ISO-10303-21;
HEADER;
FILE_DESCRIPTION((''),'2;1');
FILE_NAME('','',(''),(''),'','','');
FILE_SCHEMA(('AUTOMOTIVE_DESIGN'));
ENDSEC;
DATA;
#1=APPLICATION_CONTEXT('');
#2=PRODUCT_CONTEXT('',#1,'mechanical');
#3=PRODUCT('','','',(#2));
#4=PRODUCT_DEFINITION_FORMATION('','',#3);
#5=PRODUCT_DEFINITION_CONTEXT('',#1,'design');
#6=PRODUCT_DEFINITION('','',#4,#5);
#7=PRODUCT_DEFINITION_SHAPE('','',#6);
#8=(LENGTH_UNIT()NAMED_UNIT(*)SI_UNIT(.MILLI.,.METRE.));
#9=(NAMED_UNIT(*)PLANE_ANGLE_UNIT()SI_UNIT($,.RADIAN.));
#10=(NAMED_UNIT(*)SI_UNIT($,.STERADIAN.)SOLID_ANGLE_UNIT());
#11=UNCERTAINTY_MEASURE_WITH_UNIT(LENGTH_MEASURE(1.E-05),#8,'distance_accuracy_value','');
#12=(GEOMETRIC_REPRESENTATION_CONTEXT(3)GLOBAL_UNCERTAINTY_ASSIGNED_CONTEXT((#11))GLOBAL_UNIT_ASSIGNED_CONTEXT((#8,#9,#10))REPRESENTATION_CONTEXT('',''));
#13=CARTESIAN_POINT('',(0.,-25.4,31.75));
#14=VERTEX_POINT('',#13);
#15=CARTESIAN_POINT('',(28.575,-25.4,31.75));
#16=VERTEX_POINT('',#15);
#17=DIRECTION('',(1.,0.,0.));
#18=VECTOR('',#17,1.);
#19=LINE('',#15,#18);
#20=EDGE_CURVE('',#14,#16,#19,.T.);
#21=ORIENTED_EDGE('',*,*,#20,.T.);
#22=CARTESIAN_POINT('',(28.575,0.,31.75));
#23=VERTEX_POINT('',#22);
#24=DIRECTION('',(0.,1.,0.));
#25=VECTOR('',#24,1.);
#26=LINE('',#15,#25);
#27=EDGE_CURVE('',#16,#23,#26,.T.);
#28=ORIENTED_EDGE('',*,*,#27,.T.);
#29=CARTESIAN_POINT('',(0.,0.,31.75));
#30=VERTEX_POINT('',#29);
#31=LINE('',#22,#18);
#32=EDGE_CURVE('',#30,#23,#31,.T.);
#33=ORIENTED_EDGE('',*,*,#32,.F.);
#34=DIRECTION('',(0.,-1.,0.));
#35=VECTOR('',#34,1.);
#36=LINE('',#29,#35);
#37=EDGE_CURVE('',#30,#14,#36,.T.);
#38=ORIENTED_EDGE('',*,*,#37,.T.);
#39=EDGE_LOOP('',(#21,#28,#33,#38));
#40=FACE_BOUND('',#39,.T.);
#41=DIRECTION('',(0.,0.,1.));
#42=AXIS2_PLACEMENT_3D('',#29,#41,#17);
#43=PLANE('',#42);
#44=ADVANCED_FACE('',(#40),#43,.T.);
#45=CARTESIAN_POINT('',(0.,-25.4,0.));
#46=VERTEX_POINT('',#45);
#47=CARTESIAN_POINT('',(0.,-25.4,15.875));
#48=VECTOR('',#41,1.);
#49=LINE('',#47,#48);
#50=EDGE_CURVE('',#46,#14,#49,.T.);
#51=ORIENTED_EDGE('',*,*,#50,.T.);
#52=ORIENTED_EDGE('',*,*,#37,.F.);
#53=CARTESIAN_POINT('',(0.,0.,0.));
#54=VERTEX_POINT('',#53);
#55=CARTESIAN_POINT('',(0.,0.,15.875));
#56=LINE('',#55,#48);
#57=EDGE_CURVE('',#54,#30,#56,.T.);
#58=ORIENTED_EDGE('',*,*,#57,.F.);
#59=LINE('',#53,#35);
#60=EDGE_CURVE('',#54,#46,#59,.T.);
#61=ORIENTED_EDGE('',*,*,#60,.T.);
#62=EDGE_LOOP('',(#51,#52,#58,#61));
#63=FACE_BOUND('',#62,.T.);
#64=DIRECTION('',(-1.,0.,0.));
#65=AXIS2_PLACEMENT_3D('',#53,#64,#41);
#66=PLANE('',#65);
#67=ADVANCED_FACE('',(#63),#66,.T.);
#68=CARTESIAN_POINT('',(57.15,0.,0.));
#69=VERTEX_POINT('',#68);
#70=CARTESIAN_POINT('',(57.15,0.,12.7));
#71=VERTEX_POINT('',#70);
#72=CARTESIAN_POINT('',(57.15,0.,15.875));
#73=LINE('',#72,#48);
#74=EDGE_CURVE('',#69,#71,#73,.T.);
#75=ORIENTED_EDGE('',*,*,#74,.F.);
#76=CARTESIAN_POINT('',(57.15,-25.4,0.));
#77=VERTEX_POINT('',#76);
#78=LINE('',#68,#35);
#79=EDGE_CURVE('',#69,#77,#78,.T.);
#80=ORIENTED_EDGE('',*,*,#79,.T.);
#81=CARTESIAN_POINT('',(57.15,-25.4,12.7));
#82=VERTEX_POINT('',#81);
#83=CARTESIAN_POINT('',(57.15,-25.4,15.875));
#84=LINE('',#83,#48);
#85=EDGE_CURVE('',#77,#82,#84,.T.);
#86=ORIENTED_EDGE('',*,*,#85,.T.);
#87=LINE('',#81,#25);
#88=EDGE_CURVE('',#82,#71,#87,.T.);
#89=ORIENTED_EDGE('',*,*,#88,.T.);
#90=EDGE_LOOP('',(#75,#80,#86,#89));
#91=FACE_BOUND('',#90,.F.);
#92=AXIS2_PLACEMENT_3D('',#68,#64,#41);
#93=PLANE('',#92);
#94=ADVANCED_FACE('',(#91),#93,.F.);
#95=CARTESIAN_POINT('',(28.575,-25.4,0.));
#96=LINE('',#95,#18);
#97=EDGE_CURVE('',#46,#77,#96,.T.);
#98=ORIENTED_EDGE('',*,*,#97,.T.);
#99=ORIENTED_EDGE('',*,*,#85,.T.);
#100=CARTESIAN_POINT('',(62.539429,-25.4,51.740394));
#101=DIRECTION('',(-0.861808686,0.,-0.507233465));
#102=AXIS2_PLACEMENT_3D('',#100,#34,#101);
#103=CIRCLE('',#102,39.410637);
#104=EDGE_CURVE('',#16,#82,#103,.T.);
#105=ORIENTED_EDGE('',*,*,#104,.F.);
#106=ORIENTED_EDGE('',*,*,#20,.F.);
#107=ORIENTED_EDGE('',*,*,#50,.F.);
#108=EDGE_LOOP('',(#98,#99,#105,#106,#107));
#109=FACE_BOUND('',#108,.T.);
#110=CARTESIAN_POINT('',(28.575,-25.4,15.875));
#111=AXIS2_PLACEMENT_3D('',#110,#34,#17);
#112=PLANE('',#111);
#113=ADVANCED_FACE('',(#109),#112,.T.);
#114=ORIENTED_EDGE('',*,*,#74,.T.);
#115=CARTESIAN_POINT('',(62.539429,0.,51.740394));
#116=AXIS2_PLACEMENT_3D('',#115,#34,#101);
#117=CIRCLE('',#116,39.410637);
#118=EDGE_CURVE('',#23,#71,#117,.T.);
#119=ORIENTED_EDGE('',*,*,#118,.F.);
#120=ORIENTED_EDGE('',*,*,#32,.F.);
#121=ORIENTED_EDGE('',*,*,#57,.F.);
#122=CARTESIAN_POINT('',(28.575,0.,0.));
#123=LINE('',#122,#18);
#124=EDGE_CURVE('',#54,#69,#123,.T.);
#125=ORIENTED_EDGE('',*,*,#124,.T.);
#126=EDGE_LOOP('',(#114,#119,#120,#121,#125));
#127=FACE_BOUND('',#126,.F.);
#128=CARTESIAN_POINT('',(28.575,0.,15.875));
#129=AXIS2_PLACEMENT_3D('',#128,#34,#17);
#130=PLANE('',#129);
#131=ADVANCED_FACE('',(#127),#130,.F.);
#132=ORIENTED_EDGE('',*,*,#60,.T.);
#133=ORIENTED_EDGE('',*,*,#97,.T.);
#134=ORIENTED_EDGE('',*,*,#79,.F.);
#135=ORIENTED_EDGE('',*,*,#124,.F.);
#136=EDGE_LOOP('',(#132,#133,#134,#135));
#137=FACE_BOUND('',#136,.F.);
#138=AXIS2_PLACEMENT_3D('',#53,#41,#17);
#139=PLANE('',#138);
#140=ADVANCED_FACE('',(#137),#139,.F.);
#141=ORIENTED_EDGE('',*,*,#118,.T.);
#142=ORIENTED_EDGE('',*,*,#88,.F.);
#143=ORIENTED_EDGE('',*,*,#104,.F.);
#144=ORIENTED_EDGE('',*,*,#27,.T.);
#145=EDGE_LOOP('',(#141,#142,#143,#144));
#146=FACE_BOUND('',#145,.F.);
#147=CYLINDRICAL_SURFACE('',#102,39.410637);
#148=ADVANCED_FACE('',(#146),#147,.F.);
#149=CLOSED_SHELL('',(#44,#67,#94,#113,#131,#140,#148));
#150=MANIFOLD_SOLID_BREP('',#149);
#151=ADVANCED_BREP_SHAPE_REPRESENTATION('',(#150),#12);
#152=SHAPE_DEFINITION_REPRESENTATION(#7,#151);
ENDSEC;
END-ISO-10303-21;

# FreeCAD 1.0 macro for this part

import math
import FreeCAD as App
import Part
import Sketcher
from FreeCAD import Vector
Q = App.Units.Quantity


def add_polygon(sketch, points):
    """Adds a closed chain of lines whose ends are joined by coincident constraints."""
    first, n = sketch.GeometryCount, len(points)
    for a, b in zip(points, points[1:] + points[:1]):
        sketch.addGeometry(Part.LineSegment(App.Vector(*a, 0), App.Vector(*b, 0)), False)
    for i in range(n):
        sketch.addConstraint(Sketcher.Constraint("Coincident", first + i, 2, first + (i + 1) % n, 1))

doc = App.newDocument("Part")
body = doc.addObject("PartDesign::Body", "Body")

# Sketch on XZ plane
sketch1 = body.newObject("Sketcher::SketchObject", "Sketch")
sketch1.AttachmentSupport = (doc.getObject("XZ_Plane"), [""])
sketch1.MapMode = "FlatFace"
add_polygon(sketch1, [(0, 32), (0, 0), (57, 0), (57, 32)])  # lines 0-3
sketch1.addConstraint([
    Sketcher.Constraint("Vertical", 0),
    Sketcher.Constraint("Horizontal", 1),
    Sketcher.Constraint("Vertical", 2),
    Sketcher.Constraint("Horizontal", 3),
    Sketcher.Constraint("Coincident", 0, 2, -1, 1),
    Sketcher.Constraint("DistanceX", 1, 1, 1, 2, Q("2.25 in")),
    Sketcher.Constraint("DistanceY", 0, 2, 0, 1, Q("1.25 in")),
])
pad1 = body.newObject("PartDesign::Pad", "Pad")
pad1.Profile = sketch1
pad1.Length = Q("1 in")

# Sketch on XZ plane
sketch2 = body.newObject("Sketcher::SketchObject", "Sketch001")
sketch2.AttachmentSupport = (doc.getObject("XZ_Plane"), [""])
sketch2.MapMode = "FlatFace"
sketch2.AttachmentOffset = App.Placement(Vector(0, 0, 1 * 25.4), App.Rotation())
sketch2.addGeometry([
    Part.LineSegment(Vector(57, 32, 0), Vector(29, 32, 0)),
    Part.ArcOfCircle(Part.Circle(Vector(63, 52, 0), Vector(0, 0, 1), 39), math.radians(-150), math.radians(-98)),
    Part.LineSegment(Vector(57, 13, 0), Vector(57, 32, 0)),
], False)
sketch2.addConstraint([
    Sketcher.Constraint("Coincident", 0, 2, 1, 1),
    Sketcher.Constraint("Coincident", 1, 2, 2, 1),
    Sketcher.Constraint("Coincident", 2, 2, 0, 1),
    Sketcher.Constraint("Horizontal", 0),
    Sketcher.Constraint("Vertical", 2),
    Sketcher.Constraint("DistanceY", 2, 1, 2, 2, Q("0.75 in")),
    Sketcher.Constraint("DistanceY", -1, 1, 1, 2, Q("0.5 in")),
    Sketcher.Constraint("Radius", 1, Q("1.5515999 in")),
    Sketcher.Constraint("DistanceX", 0, 2, 0, 1, Q("1.125 in")),
    Sketcher.Constraint("DistanceX", -1, 1, 1, 2, Q("2.25 in")),
])
pocket1 = body.newObject("PartDesign::Pocket", "Pocket")
pocket1.Profile = sketch2
pocket1.Length = Q("1 in")

doc.recompute()
